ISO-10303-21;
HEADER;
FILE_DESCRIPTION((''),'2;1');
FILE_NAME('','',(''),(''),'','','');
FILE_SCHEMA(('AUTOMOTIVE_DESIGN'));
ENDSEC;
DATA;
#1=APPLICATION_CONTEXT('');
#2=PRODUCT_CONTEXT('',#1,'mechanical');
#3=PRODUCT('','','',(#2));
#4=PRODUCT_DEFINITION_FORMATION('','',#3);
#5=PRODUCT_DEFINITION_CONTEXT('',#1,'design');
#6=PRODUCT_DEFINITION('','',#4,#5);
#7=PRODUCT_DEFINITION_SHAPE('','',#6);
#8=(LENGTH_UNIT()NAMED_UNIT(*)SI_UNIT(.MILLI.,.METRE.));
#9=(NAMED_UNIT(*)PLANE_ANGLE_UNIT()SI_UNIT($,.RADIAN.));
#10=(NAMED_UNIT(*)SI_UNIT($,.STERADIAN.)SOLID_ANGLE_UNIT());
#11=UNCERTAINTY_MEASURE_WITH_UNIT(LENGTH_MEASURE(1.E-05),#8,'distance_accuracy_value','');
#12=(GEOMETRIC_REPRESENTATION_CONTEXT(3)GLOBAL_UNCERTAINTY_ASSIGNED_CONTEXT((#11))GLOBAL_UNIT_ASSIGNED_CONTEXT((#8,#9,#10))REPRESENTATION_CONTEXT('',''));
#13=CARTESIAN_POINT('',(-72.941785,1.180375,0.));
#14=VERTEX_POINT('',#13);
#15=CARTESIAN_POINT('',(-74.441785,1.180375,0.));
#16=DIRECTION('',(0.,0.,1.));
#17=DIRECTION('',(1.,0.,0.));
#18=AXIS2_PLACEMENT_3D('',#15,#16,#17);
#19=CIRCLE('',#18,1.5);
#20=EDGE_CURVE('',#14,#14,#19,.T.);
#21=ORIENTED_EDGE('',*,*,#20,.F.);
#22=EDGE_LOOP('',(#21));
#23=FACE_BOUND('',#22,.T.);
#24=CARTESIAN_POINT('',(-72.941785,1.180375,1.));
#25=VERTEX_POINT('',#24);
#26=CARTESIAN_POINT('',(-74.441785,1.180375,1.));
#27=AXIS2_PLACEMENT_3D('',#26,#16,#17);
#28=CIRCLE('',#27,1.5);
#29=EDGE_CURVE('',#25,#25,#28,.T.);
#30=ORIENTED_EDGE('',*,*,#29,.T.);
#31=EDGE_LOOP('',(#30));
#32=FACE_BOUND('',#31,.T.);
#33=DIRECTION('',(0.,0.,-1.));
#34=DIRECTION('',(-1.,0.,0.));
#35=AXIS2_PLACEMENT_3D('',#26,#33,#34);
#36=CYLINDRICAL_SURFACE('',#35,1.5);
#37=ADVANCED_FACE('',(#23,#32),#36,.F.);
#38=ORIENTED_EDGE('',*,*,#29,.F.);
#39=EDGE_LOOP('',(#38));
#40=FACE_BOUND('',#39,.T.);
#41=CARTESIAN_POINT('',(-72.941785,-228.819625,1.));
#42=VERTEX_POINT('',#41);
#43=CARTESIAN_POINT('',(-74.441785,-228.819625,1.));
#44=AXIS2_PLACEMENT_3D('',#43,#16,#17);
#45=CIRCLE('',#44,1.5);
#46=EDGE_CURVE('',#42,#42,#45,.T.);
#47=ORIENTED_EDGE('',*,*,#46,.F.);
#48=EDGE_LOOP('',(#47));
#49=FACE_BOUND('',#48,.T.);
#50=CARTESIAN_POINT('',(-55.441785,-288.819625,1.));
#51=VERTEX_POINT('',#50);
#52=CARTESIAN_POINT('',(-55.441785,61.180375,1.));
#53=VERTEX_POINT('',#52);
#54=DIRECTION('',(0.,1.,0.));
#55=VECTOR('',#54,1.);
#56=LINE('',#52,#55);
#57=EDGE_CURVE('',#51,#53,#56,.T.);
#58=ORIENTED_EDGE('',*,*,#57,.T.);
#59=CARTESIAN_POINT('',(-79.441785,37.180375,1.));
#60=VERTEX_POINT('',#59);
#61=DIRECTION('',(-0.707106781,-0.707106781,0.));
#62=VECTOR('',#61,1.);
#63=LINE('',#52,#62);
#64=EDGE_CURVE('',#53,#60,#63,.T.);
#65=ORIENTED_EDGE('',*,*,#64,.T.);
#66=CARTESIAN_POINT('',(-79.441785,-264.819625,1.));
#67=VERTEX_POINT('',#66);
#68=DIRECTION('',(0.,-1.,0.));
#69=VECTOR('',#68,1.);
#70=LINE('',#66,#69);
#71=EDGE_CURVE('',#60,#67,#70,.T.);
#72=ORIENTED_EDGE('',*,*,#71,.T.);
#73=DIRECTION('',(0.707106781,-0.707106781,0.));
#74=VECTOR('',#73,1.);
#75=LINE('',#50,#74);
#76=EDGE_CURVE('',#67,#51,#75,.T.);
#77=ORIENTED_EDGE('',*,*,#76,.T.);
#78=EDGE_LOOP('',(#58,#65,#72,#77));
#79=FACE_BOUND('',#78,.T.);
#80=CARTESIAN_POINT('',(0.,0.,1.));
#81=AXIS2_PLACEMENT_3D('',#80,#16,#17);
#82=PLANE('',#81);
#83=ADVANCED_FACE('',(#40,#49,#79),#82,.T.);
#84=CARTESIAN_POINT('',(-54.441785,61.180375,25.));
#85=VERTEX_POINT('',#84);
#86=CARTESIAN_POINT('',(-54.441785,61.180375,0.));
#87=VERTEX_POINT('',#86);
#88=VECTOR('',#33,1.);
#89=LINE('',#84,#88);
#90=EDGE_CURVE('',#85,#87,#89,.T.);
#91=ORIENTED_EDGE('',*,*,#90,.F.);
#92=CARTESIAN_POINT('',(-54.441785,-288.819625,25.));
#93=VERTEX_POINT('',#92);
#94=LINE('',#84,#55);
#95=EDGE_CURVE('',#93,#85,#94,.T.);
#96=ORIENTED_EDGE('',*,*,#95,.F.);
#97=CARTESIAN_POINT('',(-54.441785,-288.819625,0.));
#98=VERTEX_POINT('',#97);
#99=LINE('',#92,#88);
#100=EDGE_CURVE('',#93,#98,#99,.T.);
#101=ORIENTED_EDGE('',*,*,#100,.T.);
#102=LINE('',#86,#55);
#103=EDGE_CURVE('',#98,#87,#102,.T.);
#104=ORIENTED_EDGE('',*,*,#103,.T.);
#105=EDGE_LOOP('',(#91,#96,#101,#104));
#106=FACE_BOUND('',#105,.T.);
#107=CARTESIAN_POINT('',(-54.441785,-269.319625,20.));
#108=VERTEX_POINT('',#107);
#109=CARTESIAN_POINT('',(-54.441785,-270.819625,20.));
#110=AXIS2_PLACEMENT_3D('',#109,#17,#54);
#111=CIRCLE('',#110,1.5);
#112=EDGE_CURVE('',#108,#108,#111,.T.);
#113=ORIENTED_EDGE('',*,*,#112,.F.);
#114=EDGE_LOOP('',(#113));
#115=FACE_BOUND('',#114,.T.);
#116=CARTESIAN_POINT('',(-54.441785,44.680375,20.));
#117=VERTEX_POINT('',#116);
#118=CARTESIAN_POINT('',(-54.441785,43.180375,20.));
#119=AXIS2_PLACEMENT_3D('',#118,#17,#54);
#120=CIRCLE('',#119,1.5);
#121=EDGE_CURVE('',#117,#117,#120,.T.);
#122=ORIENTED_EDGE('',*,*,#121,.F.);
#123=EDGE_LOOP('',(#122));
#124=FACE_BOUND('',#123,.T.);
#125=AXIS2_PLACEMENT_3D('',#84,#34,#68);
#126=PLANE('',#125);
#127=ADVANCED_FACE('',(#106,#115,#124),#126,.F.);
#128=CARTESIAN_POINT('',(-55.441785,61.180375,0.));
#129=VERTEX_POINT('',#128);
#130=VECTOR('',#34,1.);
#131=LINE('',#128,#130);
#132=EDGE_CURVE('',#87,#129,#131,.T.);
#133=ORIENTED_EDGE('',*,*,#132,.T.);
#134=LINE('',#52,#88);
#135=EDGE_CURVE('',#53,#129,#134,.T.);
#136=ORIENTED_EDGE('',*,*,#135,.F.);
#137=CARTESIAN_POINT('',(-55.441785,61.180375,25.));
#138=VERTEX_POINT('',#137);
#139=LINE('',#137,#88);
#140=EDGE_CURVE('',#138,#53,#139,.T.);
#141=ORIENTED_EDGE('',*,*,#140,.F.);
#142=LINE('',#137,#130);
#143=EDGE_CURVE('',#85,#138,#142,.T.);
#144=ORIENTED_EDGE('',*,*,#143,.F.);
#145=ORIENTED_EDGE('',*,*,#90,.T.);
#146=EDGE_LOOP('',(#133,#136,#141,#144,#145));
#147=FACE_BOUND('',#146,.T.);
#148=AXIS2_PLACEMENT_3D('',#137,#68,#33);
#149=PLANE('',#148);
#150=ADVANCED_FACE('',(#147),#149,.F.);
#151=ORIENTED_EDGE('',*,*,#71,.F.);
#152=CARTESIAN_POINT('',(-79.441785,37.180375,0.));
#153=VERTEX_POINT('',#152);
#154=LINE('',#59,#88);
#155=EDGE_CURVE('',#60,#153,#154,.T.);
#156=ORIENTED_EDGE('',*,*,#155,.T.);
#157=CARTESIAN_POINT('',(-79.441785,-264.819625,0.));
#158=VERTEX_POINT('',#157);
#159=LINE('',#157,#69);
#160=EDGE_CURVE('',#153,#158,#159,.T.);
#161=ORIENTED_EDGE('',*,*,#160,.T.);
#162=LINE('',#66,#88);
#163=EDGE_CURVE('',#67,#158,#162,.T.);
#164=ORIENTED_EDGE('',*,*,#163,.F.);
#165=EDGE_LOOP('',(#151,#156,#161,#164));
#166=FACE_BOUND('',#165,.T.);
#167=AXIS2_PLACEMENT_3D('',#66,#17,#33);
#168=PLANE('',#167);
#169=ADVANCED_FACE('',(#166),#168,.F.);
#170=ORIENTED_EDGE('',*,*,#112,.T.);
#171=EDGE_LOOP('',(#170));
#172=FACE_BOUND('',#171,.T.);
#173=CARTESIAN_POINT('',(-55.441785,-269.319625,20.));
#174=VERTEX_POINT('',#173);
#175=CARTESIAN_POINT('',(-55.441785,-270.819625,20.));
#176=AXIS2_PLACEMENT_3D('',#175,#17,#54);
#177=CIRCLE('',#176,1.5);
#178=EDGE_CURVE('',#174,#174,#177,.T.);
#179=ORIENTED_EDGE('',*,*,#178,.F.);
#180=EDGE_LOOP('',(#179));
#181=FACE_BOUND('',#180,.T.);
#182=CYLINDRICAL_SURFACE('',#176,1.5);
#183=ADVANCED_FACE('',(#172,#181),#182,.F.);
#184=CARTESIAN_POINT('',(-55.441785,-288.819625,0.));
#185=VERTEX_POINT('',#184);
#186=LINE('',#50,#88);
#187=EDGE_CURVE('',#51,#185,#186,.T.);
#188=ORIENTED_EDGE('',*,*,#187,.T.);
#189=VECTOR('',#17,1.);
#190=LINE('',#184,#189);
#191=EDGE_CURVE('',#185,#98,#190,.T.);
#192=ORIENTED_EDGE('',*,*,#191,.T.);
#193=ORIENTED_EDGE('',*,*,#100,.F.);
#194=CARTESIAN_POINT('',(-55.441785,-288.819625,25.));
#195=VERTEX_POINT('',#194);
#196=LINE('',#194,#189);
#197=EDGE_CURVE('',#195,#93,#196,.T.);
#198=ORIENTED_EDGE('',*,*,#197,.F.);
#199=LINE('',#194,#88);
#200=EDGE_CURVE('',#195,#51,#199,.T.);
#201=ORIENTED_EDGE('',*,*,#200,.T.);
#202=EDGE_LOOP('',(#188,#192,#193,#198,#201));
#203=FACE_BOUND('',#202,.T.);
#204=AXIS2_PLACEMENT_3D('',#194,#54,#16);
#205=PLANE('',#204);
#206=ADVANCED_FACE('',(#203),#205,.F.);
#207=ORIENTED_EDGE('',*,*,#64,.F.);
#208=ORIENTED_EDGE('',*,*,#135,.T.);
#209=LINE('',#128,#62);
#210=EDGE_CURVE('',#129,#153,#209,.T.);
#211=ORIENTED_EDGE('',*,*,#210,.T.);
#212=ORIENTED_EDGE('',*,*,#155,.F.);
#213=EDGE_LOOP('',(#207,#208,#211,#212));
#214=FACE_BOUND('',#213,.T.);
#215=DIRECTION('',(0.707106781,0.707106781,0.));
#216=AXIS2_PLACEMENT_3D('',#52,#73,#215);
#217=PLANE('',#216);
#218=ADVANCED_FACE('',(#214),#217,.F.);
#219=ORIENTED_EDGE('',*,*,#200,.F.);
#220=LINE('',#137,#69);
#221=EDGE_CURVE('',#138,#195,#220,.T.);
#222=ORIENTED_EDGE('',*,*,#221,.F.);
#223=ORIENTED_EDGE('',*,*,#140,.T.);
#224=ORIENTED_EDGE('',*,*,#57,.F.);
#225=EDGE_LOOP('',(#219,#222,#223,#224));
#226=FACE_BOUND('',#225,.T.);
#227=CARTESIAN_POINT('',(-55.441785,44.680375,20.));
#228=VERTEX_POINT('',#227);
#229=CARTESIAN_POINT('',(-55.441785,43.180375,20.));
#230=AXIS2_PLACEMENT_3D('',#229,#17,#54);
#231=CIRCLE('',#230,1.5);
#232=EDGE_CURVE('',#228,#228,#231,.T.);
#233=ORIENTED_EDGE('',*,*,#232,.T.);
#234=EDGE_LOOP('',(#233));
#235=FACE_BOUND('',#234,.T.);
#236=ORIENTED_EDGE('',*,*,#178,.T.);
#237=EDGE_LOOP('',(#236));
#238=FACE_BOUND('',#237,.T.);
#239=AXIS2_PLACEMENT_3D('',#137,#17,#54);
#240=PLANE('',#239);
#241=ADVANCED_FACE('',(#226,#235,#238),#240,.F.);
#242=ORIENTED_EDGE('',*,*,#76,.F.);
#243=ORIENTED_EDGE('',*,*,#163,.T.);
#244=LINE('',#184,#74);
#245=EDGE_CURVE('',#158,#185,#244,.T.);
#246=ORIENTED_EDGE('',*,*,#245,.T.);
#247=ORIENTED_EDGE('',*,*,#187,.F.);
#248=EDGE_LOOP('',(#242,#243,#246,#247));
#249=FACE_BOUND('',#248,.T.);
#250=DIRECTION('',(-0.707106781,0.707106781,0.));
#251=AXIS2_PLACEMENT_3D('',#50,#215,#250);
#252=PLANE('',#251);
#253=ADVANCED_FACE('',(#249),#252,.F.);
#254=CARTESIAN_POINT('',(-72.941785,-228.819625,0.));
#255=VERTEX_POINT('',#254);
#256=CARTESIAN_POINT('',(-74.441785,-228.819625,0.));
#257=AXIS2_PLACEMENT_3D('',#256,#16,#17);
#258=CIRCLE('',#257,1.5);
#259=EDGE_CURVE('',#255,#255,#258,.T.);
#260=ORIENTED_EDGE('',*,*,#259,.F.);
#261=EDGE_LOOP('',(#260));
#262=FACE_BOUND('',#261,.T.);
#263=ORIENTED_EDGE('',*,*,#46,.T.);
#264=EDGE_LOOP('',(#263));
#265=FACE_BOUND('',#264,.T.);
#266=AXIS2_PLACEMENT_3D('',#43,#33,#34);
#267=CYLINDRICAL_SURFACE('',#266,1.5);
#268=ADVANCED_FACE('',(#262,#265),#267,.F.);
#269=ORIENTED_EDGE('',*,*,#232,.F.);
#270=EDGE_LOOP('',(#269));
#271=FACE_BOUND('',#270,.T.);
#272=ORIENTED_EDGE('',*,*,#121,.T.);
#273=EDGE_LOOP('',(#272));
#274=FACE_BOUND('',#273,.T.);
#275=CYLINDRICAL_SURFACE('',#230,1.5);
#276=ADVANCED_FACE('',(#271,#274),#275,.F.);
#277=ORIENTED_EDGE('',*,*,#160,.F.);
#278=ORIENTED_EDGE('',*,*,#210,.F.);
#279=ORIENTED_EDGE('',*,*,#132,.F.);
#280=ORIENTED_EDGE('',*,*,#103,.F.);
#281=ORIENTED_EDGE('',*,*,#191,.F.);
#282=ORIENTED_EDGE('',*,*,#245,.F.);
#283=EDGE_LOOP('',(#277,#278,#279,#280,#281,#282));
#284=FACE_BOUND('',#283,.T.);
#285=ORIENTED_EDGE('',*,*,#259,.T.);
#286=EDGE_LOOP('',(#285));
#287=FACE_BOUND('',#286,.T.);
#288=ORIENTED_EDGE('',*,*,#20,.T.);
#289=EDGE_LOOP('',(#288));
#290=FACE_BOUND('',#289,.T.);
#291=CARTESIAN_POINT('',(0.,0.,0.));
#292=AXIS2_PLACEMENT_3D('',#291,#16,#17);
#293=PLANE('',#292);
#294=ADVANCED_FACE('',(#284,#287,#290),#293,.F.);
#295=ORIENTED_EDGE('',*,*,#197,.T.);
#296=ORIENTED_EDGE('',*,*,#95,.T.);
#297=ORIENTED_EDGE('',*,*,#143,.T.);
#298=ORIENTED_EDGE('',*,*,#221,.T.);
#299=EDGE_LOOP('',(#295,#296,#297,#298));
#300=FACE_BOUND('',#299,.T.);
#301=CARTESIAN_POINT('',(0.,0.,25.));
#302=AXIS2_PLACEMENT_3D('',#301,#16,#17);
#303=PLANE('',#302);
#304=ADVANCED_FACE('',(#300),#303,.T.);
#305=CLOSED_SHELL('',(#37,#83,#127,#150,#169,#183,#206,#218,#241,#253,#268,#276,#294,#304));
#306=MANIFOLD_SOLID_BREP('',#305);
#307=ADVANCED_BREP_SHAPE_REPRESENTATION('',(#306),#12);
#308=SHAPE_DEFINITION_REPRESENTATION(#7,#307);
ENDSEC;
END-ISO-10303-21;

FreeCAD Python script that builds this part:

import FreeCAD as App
import Part
import Sketcher
from FreeCAD import Vector
Q = App.Units.Quantity

doc = App.newDocument("Part")
body = doc.addObject("PartDesign::Body", "Body")

# Sketch on XY plane
sketch1 = doc.addObject("Sketcher::SketchObject", "Sketch")
body.addObject(sketch1)
sketch1.AttachmentSupport = (doc.XY_Plane, [""])
sketch1.MapMode = "FlatFace"
sketch1.addGeometry([
    Part.LineSegment(Vector(-55.4, 61.2, 0), Vector(-55.4, -288.8, 0)),
    Part.LineSegment(Vector(-55.4, -288.8, 0), Vector(-54.4, -288.8, 0)),
    Part.LineSegment(Vector(-54.4, -288.8, 0), Vector(-54.4, 61.2, 0)),
    Part.LineSegment(Vector(-54.4, 61.2, 0), Vector(-55.4, 61.2, 0)),
], False)
sketch1.addConstraint([
    Sketcher.Constraint("Coincident", 0, 2, 1, 1),
    Sketcher.Constraint("Coincident", 1, 2, 2, 1),
    Sketcher.Constraint("Coincident", 2, 2, 3, 1),
    Sketcher.Constraint("Coincident", 3, 2, 0, 1),
    Sketcher.Constraint("Vertical", 0),
    Sketcher.Constraint("Horizontal", 1),
    Sketcher.Constraint("Vertical", 2),
    Sketcher.Constraint("Horizontal", 3),
    Sketcher.Constraint("DistanceX", 1, 1, 1, 2, Q("1 mm")),
    Sketcher.Constraint("DistanceY", 0, 2, 0, 1, Q("350 mm")),
    Sketcher.Constraint("DistanceX", 0, 2, -1, 1, Q("55.441785 mm")),
    Sketcher.Constraint("DistanceY", 0, 2, -1, 1, Q("288.819625 mm")),
])
pad1 = doc.addObject("PartDesign::Pad", "Pad")
body.addObject(pad1)
pad1.Profile = sketch1
pad1.Length = 25

# Sketch on YZ plane
sketch2 = doc.addObject("Sketcher::SketchObject", "Sketch001")
body.addObject(sketch2)
sketch2.AttachmentSupport = (doc.YZ_Plane, [""])
sketch2.MapMode = "FlatFace"
sketch2.AttachmentOffset = App.Placement(Vector(0, 0, -54.441785), App.Rotation())
sketch2.addGeometry([
    Part.Circle(Vector(43.2, 20, 0), Vector(0, 0, 1), 1.5),
    Part.Circle(Vector(-270.8, 20, 0), Vector(0, 0, 1), 1.5),
], False)
sketch2.addConstraint([
    Sketcher.Constraint("Equal", 0, 1),
    Sketcher.Constraint("Horizontal", 0, 3, 1, 3),
    Sketcher.Constraint("Diameter", 0, Q("3 mm")),
    Sketcher.Constraint("DistanceY", -1, 1, 0, 3, Q("20 mm")),
    Sketcher.Constraint("DistanceX", 1, 3, 0, 3, Q("314 mm")),
    Sketcher.Constraint("DistanceX", -1, 1, 0, 3, Q("43.180375 mm")),
])
pocket1 = doc.addObject("PartDesign::Pocket", "Pocket")
body.addObject(pocket1)
pocket1.Profile = sketch2
pocket1.Length = 1

# Sketch on XY plane
sketch3 = doc.addObject("Sketcher::SketchObject", "Sketch002")
body.addObject(sketch3)
sketch3.AttachmentSupport = (doc.XY_Plane, [""])
sketch3.MapMode = "FlatFace"
sketch3.addGeometry([
    Part.LineSegment(Vector(-55.4, 61.2, 0), Vector(-79.4, 37.2, 0)),  # 0
    Part.LineSegment(Vector(-79.4, 37.2, 0), Vector(-79.4, -264.8, 0)),  # 1
    Part.LineSegment(Vector(-79.4, -264.8, 0), Vector(-55.4, -288.8, 0)),  # 2
    Part.LineSegment(Vector(-55.4, -288.8, 0), Vector(-55.4, 61.2, 0)),  # 3
    Part.Circle(Vector(-74.4, -228.8, 0), Vector(0, 0, 1), 1.5),  # 4
    Part.Circle(Vector(-74.4, 1.2, 0), Vector(0, 0, 1), 1.5),  # 5
], False)
sketch3.addConstraint([
    Sketcher.Constraint("Coincident", 0, 2, 1, 1),
    Sketcher.Constraint("Coincident", 1, 2, 2, 1),
    Sketcher.Constraint("Coincident", 2, 2, 3, 1),
    Sketcher.Constraint("Coincident", 3, 2, 0, 1),
    Sketcher.Constraint("Vertical", 1),
    Sketcher.Constraint("Vertical", 3),
    Sketcher.Constraint("Equal", 4, 5),
    Sketcher.Constraint("Perpendicular", 0, 2),
    Sketcher.Constraint("Vertical", 4, 3, 5, 3),
    Sketcher.Constraint("Equal", 0, 2),
    Sketcher.Constraint("Diameter", 4, Q("3 mm")),
    Sketcher.Constraint("DistanceY", 1, 2, 1, 1, Q("302 mm")),
    Sketcher.Constraint("DistanceY", 3, 1, 3, 2, Q("350 mm")),
    Sketcher.Constraint("DistanceY", 4, 3, 5, 3, Q("230 mm")),
    Sketcher.Constraint("DistanceX", 0, 2, 5, 3, Q("5 mm")),
    Sketcher.Constraint("DistanceY", 5, 3, 0, 2, Q("36 mm")),
    Sketcher.Constraint("DistanceX", 4, 3, -1, 1, Q("74.441785 mm")),
    Sketcher.Constraint("DistanceY", 4, 3, -1, 1, Q("228.819625 mm")),
])
pad2 = doc.addObject("PartDesign::Pad", "Pad001")
body.addObject(pad2)
pad2.Profile = sketch3
pad2.Length = 1

doc.recompute()
